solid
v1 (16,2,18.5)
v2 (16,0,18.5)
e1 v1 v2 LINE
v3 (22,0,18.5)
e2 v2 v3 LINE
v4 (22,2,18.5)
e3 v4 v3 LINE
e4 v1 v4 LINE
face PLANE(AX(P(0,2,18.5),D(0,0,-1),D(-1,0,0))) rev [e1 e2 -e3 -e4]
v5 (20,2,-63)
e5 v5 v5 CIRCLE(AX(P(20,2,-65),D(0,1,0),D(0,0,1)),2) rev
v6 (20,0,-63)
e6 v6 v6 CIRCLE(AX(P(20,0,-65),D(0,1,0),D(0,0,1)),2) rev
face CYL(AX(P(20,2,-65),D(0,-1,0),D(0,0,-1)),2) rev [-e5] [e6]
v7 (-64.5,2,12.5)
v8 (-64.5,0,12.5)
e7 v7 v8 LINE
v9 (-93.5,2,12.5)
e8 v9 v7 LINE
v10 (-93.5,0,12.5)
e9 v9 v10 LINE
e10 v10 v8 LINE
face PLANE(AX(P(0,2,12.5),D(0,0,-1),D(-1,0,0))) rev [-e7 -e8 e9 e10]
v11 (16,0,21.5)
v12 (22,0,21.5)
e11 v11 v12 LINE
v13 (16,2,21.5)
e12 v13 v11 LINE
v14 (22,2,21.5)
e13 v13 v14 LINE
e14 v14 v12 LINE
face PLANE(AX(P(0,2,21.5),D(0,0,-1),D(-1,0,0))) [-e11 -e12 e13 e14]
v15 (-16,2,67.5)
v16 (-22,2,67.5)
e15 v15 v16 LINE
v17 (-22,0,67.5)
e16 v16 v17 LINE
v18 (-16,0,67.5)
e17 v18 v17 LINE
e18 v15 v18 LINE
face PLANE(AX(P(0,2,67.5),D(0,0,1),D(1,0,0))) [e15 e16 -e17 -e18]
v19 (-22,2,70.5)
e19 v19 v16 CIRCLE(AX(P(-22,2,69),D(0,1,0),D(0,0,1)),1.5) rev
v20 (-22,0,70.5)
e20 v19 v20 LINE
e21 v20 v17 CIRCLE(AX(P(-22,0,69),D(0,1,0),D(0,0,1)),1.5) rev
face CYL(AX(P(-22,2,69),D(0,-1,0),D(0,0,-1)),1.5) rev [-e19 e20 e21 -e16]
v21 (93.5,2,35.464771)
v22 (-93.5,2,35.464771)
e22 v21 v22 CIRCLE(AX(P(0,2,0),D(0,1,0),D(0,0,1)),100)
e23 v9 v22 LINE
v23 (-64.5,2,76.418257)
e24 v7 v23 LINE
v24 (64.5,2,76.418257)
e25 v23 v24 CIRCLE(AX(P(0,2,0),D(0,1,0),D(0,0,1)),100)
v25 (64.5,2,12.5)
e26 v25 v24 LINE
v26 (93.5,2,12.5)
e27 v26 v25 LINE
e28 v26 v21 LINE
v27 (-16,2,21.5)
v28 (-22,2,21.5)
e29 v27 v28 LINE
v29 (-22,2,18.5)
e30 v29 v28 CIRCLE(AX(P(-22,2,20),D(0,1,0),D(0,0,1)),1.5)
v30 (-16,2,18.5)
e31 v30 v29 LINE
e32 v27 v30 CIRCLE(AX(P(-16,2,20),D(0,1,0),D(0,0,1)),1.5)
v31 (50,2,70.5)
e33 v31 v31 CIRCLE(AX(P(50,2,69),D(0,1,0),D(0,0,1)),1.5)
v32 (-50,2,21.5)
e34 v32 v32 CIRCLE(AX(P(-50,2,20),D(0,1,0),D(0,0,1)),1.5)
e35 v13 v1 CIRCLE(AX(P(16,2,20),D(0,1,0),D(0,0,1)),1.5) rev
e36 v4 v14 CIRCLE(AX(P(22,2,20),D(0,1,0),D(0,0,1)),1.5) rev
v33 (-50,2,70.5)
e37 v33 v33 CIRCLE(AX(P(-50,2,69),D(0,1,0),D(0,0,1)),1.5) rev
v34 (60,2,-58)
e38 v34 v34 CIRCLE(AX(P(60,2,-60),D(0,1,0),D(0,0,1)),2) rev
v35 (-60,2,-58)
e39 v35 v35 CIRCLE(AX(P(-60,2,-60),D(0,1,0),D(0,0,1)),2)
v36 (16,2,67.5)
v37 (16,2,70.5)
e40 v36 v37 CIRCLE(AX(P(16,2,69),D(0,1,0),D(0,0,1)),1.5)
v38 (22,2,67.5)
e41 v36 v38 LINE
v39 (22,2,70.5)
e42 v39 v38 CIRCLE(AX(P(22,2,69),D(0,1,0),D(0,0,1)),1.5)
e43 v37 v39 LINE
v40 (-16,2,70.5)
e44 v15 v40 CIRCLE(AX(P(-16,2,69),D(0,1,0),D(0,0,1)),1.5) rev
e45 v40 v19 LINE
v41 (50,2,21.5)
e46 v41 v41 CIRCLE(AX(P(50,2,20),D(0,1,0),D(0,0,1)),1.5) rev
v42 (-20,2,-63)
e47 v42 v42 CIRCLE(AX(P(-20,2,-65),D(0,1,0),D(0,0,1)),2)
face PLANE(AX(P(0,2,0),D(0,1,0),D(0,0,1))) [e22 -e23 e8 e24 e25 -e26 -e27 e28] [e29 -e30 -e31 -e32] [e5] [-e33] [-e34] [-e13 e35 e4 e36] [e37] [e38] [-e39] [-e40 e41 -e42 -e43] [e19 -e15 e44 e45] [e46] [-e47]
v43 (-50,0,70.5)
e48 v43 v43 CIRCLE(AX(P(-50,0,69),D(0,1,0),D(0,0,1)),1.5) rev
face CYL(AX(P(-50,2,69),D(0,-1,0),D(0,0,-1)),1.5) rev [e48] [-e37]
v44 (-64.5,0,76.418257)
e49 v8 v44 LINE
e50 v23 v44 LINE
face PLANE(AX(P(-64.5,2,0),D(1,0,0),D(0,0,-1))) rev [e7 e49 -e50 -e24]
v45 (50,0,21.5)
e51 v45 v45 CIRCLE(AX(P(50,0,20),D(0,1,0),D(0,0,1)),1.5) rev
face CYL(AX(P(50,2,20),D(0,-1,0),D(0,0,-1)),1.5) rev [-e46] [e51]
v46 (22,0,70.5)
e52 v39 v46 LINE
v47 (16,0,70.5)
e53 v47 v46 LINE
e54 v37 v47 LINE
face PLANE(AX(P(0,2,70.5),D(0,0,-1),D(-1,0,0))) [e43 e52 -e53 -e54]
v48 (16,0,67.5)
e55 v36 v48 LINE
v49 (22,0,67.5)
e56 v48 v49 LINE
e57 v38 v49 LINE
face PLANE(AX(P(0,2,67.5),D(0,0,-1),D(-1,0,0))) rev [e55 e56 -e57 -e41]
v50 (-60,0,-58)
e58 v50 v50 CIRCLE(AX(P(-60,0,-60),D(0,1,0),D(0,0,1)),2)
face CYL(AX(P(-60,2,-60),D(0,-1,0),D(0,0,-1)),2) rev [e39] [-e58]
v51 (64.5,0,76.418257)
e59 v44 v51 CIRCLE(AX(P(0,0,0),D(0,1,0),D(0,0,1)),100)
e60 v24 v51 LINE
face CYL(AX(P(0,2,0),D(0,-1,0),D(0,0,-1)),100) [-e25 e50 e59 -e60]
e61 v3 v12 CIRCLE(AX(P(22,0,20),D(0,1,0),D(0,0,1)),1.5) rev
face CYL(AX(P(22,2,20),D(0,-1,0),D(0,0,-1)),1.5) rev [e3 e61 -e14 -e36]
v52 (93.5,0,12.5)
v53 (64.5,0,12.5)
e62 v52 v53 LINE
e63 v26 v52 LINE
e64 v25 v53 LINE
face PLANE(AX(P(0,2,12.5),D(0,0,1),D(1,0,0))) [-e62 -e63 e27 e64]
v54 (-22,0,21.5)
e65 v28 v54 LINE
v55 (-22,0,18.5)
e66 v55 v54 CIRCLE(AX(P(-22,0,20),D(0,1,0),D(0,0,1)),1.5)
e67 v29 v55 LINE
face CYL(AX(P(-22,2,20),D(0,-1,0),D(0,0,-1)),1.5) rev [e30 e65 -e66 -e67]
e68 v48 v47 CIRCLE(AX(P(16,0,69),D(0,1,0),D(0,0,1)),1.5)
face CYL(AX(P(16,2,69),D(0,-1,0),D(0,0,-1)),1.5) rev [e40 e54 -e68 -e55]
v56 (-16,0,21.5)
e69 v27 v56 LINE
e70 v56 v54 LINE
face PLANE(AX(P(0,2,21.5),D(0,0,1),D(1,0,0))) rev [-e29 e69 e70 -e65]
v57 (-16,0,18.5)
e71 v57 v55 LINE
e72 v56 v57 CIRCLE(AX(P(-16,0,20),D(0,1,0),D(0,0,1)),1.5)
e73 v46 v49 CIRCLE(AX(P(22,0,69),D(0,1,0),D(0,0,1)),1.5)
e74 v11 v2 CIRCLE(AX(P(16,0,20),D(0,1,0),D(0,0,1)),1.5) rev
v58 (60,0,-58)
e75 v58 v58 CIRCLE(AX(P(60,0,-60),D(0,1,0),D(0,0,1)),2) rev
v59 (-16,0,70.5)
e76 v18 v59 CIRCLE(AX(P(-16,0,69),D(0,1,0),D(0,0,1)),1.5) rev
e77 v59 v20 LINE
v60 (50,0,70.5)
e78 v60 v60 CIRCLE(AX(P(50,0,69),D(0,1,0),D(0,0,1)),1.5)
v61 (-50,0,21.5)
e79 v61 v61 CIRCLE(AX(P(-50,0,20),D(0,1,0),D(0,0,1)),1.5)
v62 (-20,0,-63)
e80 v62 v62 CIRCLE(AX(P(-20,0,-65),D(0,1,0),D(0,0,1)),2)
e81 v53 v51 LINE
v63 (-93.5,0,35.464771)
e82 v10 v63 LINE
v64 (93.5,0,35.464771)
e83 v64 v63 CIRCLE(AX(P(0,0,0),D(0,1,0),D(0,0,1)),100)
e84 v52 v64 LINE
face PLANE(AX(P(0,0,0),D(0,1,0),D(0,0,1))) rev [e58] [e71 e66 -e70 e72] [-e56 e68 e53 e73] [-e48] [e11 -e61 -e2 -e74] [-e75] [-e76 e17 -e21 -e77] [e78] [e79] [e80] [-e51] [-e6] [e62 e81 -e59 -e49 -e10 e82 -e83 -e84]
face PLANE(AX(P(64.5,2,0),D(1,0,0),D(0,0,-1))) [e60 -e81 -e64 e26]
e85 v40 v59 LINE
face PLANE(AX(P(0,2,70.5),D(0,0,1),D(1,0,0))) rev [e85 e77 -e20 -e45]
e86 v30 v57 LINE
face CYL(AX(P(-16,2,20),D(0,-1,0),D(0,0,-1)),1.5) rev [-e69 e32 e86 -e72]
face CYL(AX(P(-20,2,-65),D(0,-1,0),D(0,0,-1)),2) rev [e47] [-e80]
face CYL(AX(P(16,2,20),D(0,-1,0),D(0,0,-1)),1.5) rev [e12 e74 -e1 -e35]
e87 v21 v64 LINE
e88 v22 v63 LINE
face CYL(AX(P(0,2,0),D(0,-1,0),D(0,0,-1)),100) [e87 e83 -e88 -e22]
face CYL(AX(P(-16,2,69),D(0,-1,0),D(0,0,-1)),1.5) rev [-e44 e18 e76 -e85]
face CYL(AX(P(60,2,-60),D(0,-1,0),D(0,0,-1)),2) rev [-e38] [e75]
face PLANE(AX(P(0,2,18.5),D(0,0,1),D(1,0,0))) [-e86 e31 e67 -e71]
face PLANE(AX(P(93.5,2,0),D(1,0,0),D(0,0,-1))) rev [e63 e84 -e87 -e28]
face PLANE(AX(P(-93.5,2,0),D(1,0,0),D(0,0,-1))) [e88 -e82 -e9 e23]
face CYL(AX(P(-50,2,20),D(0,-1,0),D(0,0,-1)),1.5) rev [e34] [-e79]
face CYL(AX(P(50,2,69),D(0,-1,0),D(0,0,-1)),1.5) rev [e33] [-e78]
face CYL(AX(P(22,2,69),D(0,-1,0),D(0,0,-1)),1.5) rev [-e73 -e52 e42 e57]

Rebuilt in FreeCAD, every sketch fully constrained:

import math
import FreeCAD as App
import Part
import Sketcher

V = App.Vector

doc = App.newDocument("Part")
body = doc.addObject("PartDesign::Body", "Body")

# Sketch on XZ plane
sketch1 = body.newObject("Sketcher::SketchObject", "Sketch")
sketch1.AttachmentSupport = (doc.getObject("XZ_Plane"), [""])
sketch1.MapMode = "FlatFace"
sketch1.addGeometry([
    Part.LineSegment(V(-93.5, 35.5, 0), V(-93.5, 12.5, 0)),  # 0
    Part.LineSegment(V(-93.5, 12.5, 0), V(-64.5, 12.5, 0)),  # 1
    Part.LineSegment(V(-64.5, 12.5, 0), V(-64.5, 76.4, 0)),  # 2
    Part.ArcOfCircle(Part.Circle(V(0, 0, 0), V(0, 0, 1), 100), math.radians(50), math.radians(130)),  # 3
    Part.LineSegment(V(64.5, 76.4, 0), V(64.5, 12.5, 0)),  # 4
    Part.LineSegment(V(64.5, 12.5, 0), V(93.5, 12.5, 0)),  # 5
    Part.LineSegment(V(93.5, 12.5, 0), V(93.5, 35.5, 0)),  # 6
    Part.ArcOfCircle(Part.Circle(V(0, 0, 0), V(0, 0, 1), 100), math.radians(159), math.radians(381)),  # 7
    Part.Circle(V(-50, 69, 0), V(0, 0, 1), 1.5),  # 8
    Part.ArcOfCircle(Part.Circle(V(-22, 69, 0), V(0, 0, 1), 1.5), math.radians(90), math.radians(270)),  # 9
    Part.LineSegment(V(-22, 67.5, 0), V(-16, 67.5, 0)),  # 10
    Part.ArcOfCircle(Part.Circle(V(-16, 69, 0), V(0, 0, 1), 1.5), math.radians(-90), math.radians(90)),  # 11
    Part.LineSegment(V(-16, 70.5, 0), V(-22, 70.5, 0)),  # 12
    Part.Circle(V(-50, 20, 0), V(0, 0, 1), 1.5),  # 13
    Part.LineSegment(V(-22, 18.5, 0), V(-16, 18.5, 0)),  # 14
    Part.ArcOfCircle(Part.Circle(V(-16, 20, 0), V(0, 0, 1), 1.5), math.radians(-90), math.radians(90)),  # 15
    Part.LineSegment(V(-16, 21.5, 0), V(-22, 21.5, 0)),  # 16
    Part.ArcOfCircle(Part.Circle(V(-22, 20, 0), V(0, 0, 1), 1.5), math.radians(90), math.radians(270)),  # 17
    Part.LineSegment(V(22, 70.5, 0), V(16, 70.5, 0)),  # 18
    Part.ArcOfCircle(Part.Circle(V(16, 69, 0), V(0, 0, 1), 1.5), math.radians(90), math.radians(270)),  # 19
    Part.LineSegment(V(16, 67.5, 0), V(22, 67.5, 0)),  # 20
    Part.ArcOfCircle(Part.Circle(V(22, 69, 0), V(0, 0, 1), 1.5), math.radians(-90), math.radians(90)),  # 21
    Part.Circle(V(50, 69, 0), V(0, 0, 1), 1.5),  # 22
    Part.ArcOfCircle(Part.Circle(V(22, 20, 0), V(0, 0, 1), 1.5), math.radians(-90), math.radians(90)),  # 23
    Part.LineSegment(V(22, 21.5, 0), V(16, 21.5, 0)),  # 24
    Part.ArcOfCircle(Part.Circle(V(16, 20, 0), V(0, 0, 1), 1.5), math.radians(90), math.radians(270)),  # 25
    Part.LineSegment(V(16, 18.5, 0), V(22, 18.5, 0)),  # 26
    Part.Circle(V(50, 20, 0), V(0, 0, 1), 1.5),  # 27
    Part.Circle(V(-60, -60, 0), V(0, 0, 1), 2),  # 28
    Part.Circle(V(-20, -65, 0), V(0, 0, 1), 2),  # 29
    Part.Circle(V(20, -65, 0), V(0, 0, 1), 2),  # 30
    Part.Circle(V(60, -60, 0), V(0, 0, 1), 2),  # 31
], False)
sketch1.addConstraint([
    Sketcher.Constraint("Coincident", 0, 2, 1, 1),
    Sketcher.Constraint("Coincident", 1, 2, 2, 1),
    Sketcher.Constraint("Coincident", 2, 2, 3, 2),
    Sketcher.Constraint("Coincident", 3, 1, 4, 1),
    Sketcher.Constraint("Coincident", 4, 2, 5, 1),
    Sketcher.Constraint("Coincident", 5, 2, 6, 1),
    Sketcher.Constraint("Coincident", 6, 2, 7, 2),
    Sketcher.Constraint("Coincident", 7, 1, 0, 1),
    Sketcher.Constraint("Tangent", 9, 2, 10, 1),
    Sketcher.Constraint("Tangent", 10, 2, 11, 1),
    Sketcher.Constraint("Tangent", 11, 2, 12, 1),
    Sketcher.Constraint("Tangent", 12, 2, 9, 1),
    Sketcher.Constraint("Tangent", 14, 2, 15, 1),
    Sketcher.Constraint("Tangent", 15, 2, 16, 1),
    Sketcher.Constraint("Tangent", 16, 2, 17, 1),
    Sketcher.Constraint("Tangent", 17, 2, 14, 1),
    Sketcher.Constraint("Tangent", 18, 2, 19, 1),
    Sketcher.Constraint("Tangent", 19, 2, 20, 1),
    Sketcher.Constraint("Tangent", 20, 2, 21, 1),
    Sketcher.Constraint("Tangent", 21, 2, 18, 1),
    Sketcher.Constraint("Tangent", 23, 2, 24, 1),
    Sketcher.Constraint("Tangent", 24, 2, 25, 1),
    Sketcher.Constraint("Tangent", 25, 2, 26, 1),
    Sketcher.Constraint("Tangent", 26, 2, 23, 1),
    Sketcher.Constraint("Vertical", 0),
    Sketcher.Constraint("Horizontal", 1),
    Sketcher.Constraint("Vertical", 2),
    Sketcher.Constraint("Vertical", 4),
    Sketcher.Constraint("Horizontal", 5),
    Sketcher.Constraint("Vertical", 6),
    Sketcher.Constraint("Horizontal", 10),
    Sketcher.Constraint("Horizontal", 12),
    Sketcher.Constraint("Horizontal", 14),
    Sketcher.Constraint("Horizontal", 16),
    Sketcher.Constraint("Horizontal", 18),
    Sketcher.Constraint("Horizontal", 20),
    Sketcher.Constraint("Horizontal", 24),
    Sketcher.Constraint("Horizontal", 26),
    Sketcher.Constraint("Coincident", 3, 3, -1, 1),
    Sketcher.Constraint("Coincident", 7, 3, -1, 1),
    Sketcher.Constraint("Equal", 3, 7),
    Sketcher.Constraint("Equal", 8, 9),
    Sketcher.Constraint("Equal", 11, 13),
    Sketcher.Constraint("Equal", 13, 15),
    Sketcher.Constraint("Equal", 17, 19),
    Sketcher.Constraint("Equal", 21, 22),
    Sketcher.Constraint("Equal", 22, 23),
    Sketcher.Constraint("Equal", 25, 27),
    Sketcher.Constraint("Equal", 28, 29),
    Sketcher.Constraint("Equal", 29, 30),
    Sketcher.Constraint("Equal", 30, 31),
    Sketcher.Constraint("Symmetric", 11, 3, 19, 3, -2),
    Sketcher.Constraint("Symmetric", 8, 3, 22, 3, -2),
    Sketcher.Constraint("Symmetric", 17, 3, 23, 3, -2),
    Sketcher.Constraint("Symmetric", 13, 3, 27, 3, -2),
    Sketcher.Constraint("Symmetric", 29, 3, 30, 3, -2),
    Sketcher.Constraint("Symmetric", 28, 3, 31, 3, -2),
    Sketcher.Constraint("Symmetric", 1, 2, 4, 2, -2),
    Sketcher.Constraint("Horizontal", 8, 3, 9, 3),
    Sketcher.Constraint("Horizontal", 13, 3, 15, 3),
    Sketcher.Constraint("Horizontal", 6, 2, 7, 1),
    Sketcher.Constraint("Vertical", 8, 3, 13, 3),
    Sketcher.Constraint("Vertical", 11, 3, 15, 3),
    Sketcher.Constraint("Vertical", 9, 3, 17, 3),
    Sketcher.Constraint("Vertical", 21, 3, 23, 3),
    Sketcher.Constraint("Vertical", 19, 3, 25, 3),
    Sketcher.Constraint("Diameter", 8, 3.0),
    Sketcher.Constraint("Diameter", 28, 4.0),
    Sketcher.Constraint("Radius", 3, 100.0),
    Sketcher.Constraint("DistanceX", 1, 1, 1, 2, 29.0),
    Sketcher.Constraint("DistanceX", 10, 1, 10, 2, 6.0),
    Sketcher.Constraint("DistanceX", 8, 3, -1, 1, 50.0),
    Sketcher.Constraint("DistanceY", -1, 1, 8, 3, 69.0),
    Sketcher.Constraint("DistanceX", 9, 3, -1, 1, 22.0),
    Sketcher.Constraint("DistanceY", -1, 1, 13, 3, 20.0),
    Sketcher.Constraint("DistanceX", 28, 3, -1, 1, 60.0),
    Sketcher.Constraint("DistanceY", 28, 3, -1, 1, 60.0),
    Sketcher.Constraint("DistanceX", 29, 3, -1, 1, 20.0),
    Sketcher.Constraint("DistanceY", 29, 3, -1, 1, 65.0),
    Sketcher.Constraint("DistanceX", 0, 2, -1, 1, 93.5),
    Sketcher.Constraint("DistanceY", -1, 1, 0, 2, 12.5),
])
pad1 = body.newObject("PartDesign::Pad", "Pad")
pad1.Profile = sketch1
pad1.Length = 2
pad1.Reversed = True

doc.recompute()
